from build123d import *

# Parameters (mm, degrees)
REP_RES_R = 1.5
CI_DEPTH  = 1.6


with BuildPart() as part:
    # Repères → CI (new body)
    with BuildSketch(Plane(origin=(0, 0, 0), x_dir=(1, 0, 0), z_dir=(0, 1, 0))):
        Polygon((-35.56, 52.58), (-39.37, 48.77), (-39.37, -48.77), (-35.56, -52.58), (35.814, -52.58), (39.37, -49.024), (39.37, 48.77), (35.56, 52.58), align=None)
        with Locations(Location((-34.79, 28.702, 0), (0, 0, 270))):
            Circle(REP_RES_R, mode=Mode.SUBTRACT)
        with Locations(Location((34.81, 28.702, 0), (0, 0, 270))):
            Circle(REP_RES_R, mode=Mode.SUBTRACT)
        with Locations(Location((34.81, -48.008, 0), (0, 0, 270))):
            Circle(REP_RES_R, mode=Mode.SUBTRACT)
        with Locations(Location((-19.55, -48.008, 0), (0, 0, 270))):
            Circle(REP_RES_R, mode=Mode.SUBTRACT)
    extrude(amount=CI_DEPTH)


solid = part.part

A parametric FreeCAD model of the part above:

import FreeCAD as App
import Part
import Sketcher
Q = App.Units.Quantity

doc = App.newDocument("Part")
body = doc.addObject("PartDesign::Body", "Body")

# Sketch on XZ plane
sketch1 = doc.addObject("Sketcher::SketchObject", "Sketch")
body.addObject(sketch1)
sketch1.AttachmentSupport = (doc.XZ_Plane, [""])
sketch1.MapMode = "FlatFace"
sketch1.addGeometry(Part.LineSegment(App.Vector(-35.56, -52.58, 0), App.Vector(-39.37, -48.77, 0)), False)
sketch1.addGeometry(Part.LineSegment(App.Vector(-39.37, -48.77, 0), App.Vector(-39.37, 48.77, 0)), False)
sketch1.addGeometry(Part.LineSegment(App.Vector(-39.37, 48.77, 0), App.Vector(-35.56, 52.58, 0)), False)
sketch1.addGeometry(Part.LineSegment(App.Vector(-35.56, 52.58, 0), App.Vector(35.814, 52.58, 0)), False)
sketch1.addGeometry(Part.LineSegment(App.Vector(35.814, 52.58, 0), App.Vector(39.37, 49.024, 0)), False)
sketch1.addGeometry(Part.LineSegment(App.Vector(39.37, 49.024, 0), App.Vector(39.37, -48.77, 0)), False)
sketch1.addGeometry(Part.LineSegment(App.Vector(39.37, -48.77, 0), App.Vector(35.56, -52.58, 0)), False)
sketch1.addGeometry(Part.LineSegment(App.Vector(35.56, -52.58, 0), App.Vector(-35.56, -52.58, 0)), False)
sketch1.addGeometry(Part.Circle(App.Vector(-19.55, 48.008, 0), App.Vector(0, 0, 1), 1.5), False)
sketch1.addGeometry(Part.Circle(App.Vector(34.81, 48.008, 0), App.Vector(0, 0, 1), 1.5), False)
sketch1.addGeometry(Part.Circle(App.Vector(-34.79, -28.702, 0), App.Vector(0, 0, 1), 1.5), False)
sketch1.addGeometry(Part.Circle(App.Vector(34.81, -28.702, 0), App.Vector(0, 0, 1), 1.5), False)
sketch1.addConstraint(Sketcher.Constraint("Coincident", 0, 2, 1, 1))
sketch1.addConstraint(Sketcher.Constraint("Coincident", 1, 2, 2, 1))
sketch1.addConstraint(Sketcher.Constraint("Coincident", 2, 2, 3, 1))
sketch1.addConstraint(Sketcher.Constraint("Coincident", 3, 2, 4, 1))
sketch1.addConstraint(Sketcher.Constraint("Coincident", 4, 2, 5, 1))
sketch1.addConstraint(Sketcher.Constraint("Coincident", 5, 2, 6, 1))
sketch1.addConstraint(Sketcher.Constraint("Coincident", 6, 2, 7, 1))
sketch1.addConstraint(Sketcher.Constraint("Coincident", 7, 2, 0, 1))
sketch1.addConstraint(Sketcher.Constraint("Vertical", 1))
sketch1.addConstraint(Sketcher.Constraint("Horizontal", 3))
sketch1.addConstraint(Sketcher.Constraint("Vertical", 5))
sketch1.addConstraint(Sketcher.Constraint("Horizontal", 7))
sketch1.addConstraint(Sketcher.Constraint("Equal", 8, 9))
sketch1.addConstraint(Sketcher.Constraint("Equal", 9, 10))
sketch1.addConstraint(Sketcher.Constraint("Equal", 10, 11))
sketch1.addConstraint(Sketcher.Constraint("Symmetric", 1, 2, 5, 2, -1, 1))
sketch1.addConstraint(Sketcher.Constraint("Symmetric", 2, 2, 6, 2, -1, 1))
sketch1.addConstraint(Sketcher.Constraint("Perpendicular", 0, 2))
sketch1.addConstraint(Sketcher.Constraint("Perpendicular", 2, 4))
sketch1.addConstraint(Sketcher.Constraint("Horizontal", 8, 3, 9, 3))
sketch1.addConstraint(Sketcher.Constraint("Horizontal", 10, 3, 11, 3))
sketch1.addConstraint(Sketcher.Constraint("Horizontal", 0, 2, 5, 2))
sketch1.addConstraint(Sketcher.Constraint("Vertical", 9, 3, 11, 3))
sketch1.addConstraint(Sketcher.Constraint("Vertical", 2, 2, 7, 2))
sketch1.addConstraint(Sketcher.Constraint("Diameter", 8, Q("3 mm")))
sketch1.addConstraint(Sketcher.Constraint("DistanceX", 7, 2, 7, 1, Q("71.12 mm")))
sketch1.addConstraint(Sketcher.Constraint("DistanceY", 1, 1, 1, 2, Q("97.54 mm")))
sketch1.addConstraint(Sketcher.Constraint("DistanceX", 10, 3, 9, 3, Q("69.6 mm")))
sketch1.addConstraint(Sketcher.Constraint("DistanceX", 3, 1, 3, 2, Q("71.374 mm")))
sketch1.addConstraint(Sketcher.Constraint("DistanceX", 8, 3, -1, 1, Q("19.55 mm")))
sketch1.addConstraint(Sketcher.Constraint("DistanceX", -1, 1, 9, 3, Q("34.81 mm")))
sketch1.addConstraint(Sketcher.Constraint("DistanceX", 0, 2, -1, 1, Q("39.37 mm")))
sketch1.addConstraint(Sketcher.Constraint("DistanceY", 10, 3, 8, 3, Q("76.71 mm")))
sketch1.addConstraint(Sketcher.Constraint("DistanceY", -1, 1, 8, 3, Q("48.008 mm")))
pad1 = doc.addObject("PartDesign::Pad", "Pad")
body.addObject(pad1)
pad1.Profile = sketch1
pad1.Length = 1.6
pad1.Reversed = True

doc.recompute()
